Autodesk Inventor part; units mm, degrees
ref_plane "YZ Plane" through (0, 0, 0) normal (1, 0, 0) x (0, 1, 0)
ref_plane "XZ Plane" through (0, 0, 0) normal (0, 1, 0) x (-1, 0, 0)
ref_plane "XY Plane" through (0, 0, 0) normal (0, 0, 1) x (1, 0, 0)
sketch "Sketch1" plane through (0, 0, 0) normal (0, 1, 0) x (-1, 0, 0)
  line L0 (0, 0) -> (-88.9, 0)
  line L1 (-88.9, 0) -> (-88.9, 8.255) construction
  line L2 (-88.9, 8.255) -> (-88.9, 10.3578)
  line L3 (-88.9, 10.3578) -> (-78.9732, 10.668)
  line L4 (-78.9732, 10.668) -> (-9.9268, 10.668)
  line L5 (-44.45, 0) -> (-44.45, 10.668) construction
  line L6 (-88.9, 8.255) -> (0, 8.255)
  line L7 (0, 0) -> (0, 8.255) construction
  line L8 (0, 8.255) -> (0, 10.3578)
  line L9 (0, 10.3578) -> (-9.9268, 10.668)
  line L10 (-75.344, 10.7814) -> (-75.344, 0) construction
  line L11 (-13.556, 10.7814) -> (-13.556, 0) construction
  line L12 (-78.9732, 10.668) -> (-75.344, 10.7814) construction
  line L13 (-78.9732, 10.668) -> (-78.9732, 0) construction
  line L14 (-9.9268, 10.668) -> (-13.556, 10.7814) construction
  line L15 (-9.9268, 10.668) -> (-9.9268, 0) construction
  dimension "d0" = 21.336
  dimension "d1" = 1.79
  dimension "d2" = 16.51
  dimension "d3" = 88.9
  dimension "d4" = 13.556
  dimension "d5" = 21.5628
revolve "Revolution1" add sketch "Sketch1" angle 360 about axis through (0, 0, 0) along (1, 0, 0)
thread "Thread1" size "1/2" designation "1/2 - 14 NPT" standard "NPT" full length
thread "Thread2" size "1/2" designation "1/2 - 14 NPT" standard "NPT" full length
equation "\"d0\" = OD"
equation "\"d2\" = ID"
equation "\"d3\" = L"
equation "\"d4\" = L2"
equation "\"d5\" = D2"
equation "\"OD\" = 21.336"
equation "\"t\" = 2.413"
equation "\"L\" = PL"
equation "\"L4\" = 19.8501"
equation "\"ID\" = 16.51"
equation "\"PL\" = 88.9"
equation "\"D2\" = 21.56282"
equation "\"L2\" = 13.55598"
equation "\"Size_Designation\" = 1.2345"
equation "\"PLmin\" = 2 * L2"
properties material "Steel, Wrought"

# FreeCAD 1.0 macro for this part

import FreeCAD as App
import Part
import Sketcher
Q = App.Units.Quantity


def add_polygon(sketch, points):
    """Adds a closed chain of lines whose ends are joined by coincident constraints."""
    first, n = sketch.GeometryCount, len(points)
    for a, b in zip(points, points[1:] + points[:1]):
        sketch.addGeometry(Part.LineSegment(App.Vector(*a, 0), App.Vector(*b, 0)), False)
    for i in range(n):
        sketch.addConstraint(Sketcher.Constraint("Coincident", first + i, 2, first + (i + 1) % n, 1))

doc = App.newDocument("Part")
body = doc.addObject("PartDesign::Body", "Body")

sketch1 = body.newObject("Sketcher::SketchObject", "Sketch")
sketch1.AttachmentSupport = (doc.getObject("XZ_Plane"), [""])
sketch1.MapMode = "FlatFace"
add_polygon(sketch1, [(88.9, 10.4), (88.9, 8.3), (0, 8.3), (0, 10.4), (9.9, 10.7), (79, 10.7)])
sketch1.addConstraint([
    Sketcher.Constraint("Vertical", 0),
    Sketcher.Constraint("Horizontal", 1),
    Sketcher.Constraint("Vertical", 2),
    Sketcher.Constraint("Horizontal", 4),
    Sketcher.Constraint("PointOnObject", 1, 2, -2),
    Sketcher.Constraint("Horizontal", 2, 2, 5, 2),
    Sketcher.Constraint("Equal", 3, 5),
    Sketcher.Constraint("DistanceX", 1, 2, 1, 1, Q("3.5 in")),
    Sketcher.Constraint("Angle", 3, Q("1.7898 deg")),
    Sketcher.Constraint("DistanceY", -1, 1, 3, 2, Q("0.42 in")),
    Sketcher.Constraint("Distance", 3, Q("0.391 in")),
    Sketcher.Constraint("DistanceY", -1, 1, 0, 2, Q("0.325 in")),
])
revolution = body.newObject("PartDesign::Revolution", "Revolution")
revolution.Profile = sketch1
revolution.ReferenceAxis = (sketch1, ["H_Axis"])
revolution.Angle = 360

doc.recompute()
